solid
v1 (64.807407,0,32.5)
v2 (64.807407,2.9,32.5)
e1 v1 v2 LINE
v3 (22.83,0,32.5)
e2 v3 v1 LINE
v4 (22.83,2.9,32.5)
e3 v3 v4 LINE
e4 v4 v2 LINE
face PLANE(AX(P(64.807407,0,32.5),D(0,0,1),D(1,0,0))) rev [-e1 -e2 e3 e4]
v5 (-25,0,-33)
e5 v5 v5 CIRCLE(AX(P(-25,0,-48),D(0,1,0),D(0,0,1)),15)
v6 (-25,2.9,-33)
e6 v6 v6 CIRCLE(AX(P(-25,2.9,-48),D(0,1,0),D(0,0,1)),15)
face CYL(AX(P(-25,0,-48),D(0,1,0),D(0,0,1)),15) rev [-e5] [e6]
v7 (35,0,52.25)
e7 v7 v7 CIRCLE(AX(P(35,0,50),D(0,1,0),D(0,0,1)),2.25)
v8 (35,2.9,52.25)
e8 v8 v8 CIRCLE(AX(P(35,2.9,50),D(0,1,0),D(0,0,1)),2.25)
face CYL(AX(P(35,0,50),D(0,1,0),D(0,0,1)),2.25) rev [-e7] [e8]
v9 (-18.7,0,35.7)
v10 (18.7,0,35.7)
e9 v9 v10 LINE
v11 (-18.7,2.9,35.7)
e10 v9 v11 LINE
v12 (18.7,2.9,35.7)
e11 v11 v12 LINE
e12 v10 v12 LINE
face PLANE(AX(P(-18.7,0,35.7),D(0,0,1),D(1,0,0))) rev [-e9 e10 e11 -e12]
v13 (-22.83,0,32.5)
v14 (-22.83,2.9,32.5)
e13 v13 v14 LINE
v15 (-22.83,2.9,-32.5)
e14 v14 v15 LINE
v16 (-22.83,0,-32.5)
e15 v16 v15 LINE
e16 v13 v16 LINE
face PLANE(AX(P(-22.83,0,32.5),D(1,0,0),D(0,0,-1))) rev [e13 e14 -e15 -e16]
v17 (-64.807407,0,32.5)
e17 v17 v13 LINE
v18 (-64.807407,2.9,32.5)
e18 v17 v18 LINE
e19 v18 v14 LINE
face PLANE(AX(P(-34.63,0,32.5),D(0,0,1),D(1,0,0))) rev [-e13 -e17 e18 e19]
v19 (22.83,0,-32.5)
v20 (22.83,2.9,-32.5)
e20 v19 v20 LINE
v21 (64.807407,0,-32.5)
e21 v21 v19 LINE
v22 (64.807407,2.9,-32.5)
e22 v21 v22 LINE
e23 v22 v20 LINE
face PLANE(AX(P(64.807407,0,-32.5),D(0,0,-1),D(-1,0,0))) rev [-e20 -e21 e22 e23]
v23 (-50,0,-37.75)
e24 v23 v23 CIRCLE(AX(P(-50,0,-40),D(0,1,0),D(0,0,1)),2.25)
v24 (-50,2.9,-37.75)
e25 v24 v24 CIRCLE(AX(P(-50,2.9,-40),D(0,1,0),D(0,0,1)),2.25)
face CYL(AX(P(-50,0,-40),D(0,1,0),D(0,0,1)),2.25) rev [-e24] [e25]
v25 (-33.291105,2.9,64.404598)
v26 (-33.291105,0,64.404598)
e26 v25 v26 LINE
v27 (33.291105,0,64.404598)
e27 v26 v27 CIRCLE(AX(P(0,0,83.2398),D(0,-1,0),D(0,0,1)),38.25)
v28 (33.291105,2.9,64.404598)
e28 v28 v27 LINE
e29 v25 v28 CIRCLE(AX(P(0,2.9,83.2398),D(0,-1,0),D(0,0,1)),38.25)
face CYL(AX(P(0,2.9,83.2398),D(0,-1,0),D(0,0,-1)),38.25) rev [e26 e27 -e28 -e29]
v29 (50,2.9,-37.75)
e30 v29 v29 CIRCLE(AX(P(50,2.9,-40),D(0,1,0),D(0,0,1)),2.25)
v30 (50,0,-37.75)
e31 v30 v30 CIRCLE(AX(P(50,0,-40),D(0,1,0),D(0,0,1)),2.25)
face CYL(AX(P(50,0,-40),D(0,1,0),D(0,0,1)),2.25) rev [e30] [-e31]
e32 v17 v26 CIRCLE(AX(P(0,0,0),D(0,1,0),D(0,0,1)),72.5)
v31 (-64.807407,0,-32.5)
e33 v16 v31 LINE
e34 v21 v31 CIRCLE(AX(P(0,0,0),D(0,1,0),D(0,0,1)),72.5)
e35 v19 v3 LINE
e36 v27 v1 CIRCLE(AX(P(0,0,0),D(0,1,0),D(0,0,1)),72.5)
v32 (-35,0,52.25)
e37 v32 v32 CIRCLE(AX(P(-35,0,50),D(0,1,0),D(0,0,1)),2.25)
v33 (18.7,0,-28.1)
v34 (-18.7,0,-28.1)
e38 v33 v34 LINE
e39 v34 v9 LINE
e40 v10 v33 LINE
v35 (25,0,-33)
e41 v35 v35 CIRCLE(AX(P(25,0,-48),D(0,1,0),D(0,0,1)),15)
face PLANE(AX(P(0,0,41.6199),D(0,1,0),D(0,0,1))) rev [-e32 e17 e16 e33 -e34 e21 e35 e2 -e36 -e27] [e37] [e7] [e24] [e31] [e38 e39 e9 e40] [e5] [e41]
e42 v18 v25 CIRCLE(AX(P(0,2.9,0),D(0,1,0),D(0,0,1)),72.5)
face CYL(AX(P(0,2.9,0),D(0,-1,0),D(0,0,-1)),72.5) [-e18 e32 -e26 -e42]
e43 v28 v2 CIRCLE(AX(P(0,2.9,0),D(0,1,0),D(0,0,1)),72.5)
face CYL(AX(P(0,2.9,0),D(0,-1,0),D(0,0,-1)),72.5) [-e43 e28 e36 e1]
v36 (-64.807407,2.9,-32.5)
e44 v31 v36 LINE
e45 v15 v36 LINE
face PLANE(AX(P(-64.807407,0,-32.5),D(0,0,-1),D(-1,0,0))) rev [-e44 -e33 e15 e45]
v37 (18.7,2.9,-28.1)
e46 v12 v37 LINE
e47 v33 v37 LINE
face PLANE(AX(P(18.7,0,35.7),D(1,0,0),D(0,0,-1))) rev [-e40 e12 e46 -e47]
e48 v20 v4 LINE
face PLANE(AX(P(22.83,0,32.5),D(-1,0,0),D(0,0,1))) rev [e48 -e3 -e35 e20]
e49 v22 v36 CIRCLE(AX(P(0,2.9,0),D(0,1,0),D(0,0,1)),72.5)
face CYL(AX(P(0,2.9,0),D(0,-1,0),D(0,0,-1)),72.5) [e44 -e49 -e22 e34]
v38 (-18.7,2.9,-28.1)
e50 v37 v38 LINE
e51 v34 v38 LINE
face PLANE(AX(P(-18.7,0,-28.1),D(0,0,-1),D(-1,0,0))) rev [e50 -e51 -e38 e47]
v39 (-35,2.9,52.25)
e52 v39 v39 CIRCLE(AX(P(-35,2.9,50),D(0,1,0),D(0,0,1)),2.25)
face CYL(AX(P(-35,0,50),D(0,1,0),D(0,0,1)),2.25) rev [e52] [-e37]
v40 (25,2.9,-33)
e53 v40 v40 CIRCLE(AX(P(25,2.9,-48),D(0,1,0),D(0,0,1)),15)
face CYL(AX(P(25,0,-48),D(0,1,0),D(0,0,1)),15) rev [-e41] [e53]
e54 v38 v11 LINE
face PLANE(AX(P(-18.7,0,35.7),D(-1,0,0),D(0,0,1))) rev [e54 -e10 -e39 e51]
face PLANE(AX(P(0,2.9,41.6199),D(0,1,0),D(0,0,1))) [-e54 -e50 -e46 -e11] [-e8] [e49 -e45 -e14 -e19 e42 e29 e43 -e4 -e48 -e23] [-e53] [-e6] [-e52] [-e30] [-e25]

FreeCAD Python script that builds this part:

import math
import FreeCAD as App
import Part
import Sketcher
from FreeCAD import Vector


def add_polygon(sketch, points):
    """Adds a closed chain of lines whose ends are joined by coincident constraints."""
    first, n = sketch.GeometryCount, len(points)
    for a, b in zip(points, points[1:] + points[:1]):
        sketch.addGeometry(Part.LineSegment(App.Vector(*a, 0), App.Vector(*b, 0)), False)
    for i in range(n):
        sketch.addConstraint(Sketcher.Constraint("Coincident", first + i, 2, first + (i + 1) % n, 1))

doc = App.newDocument("Part")
body = doc.addObject("PartDesign::Body", "Body")

# Sketch on XZ plane
sketch1 = body.newObject("Sketcher::SketchObject", "Sketch")
sketch1.AttachmentSupport = (doc.getObject("XZ_Plane"), [""])
sketch1.MapMode = "FlatFace"
sketch1.addGeometry([
    Part.ArcOfCircle(Part.Circle(Vector(0, 0, 0), Vector(0, 0, 1), 72), math.radians(117), math.radians(423)),
    Part.ArcOfCircle(Part.Circle(Vector(0, 83, 0), Vector(0, 0, 1), 38), math.radians(-150), math.radians(-30)),
], False)
sketch1.addConstraint([
    Sketcher.Constraint("Coincident", 0, 1, 1, 1),
    Sketcher.Constraint("Coincident", 1, 2, 0, 2),
    Sketcher.Constraint("Coincident", 0, 3, -1, 1),
    Sketcher.Constraint("PointOnObject", 1, 3, -2),
    Sketcher.Constraint("Radius", 0, 72.5),
    Sketcher.Constraint("Radius", 1, 38.25),
    Sketcher.Constraint("DistanceY", -1, 1, 1, 3, 83.2398),
])
pad1 = body.newObject("PartDesign::Pad", "Pad")
pad1.Profile = sketch1
pad1.Length = 2.9
pad1.Reversed = True

# Sketch on XZ plane
sketch2 = body.newObject("Sketcher::SketchObject", "Sketch001")
sketch2.AttachmentSupport = (doc.getObject("XZ_Plane"), [""])
sketch2.MapMode = "FlatFace"
sketch2.AttachmentOffset = App.Placement(Vector(0, 0, -2.9), App.Rotation())
add_polygon(sketch2, [(-19, -28), (-19, 36), (19, 36), (19, -28)])  # lines 0-3
sketch2.addConstraint([
    Sketcher.Constraint("Vertical", 0),
    Sketcher.Constraint("Horizontal", 1),
    Sketcher.Constraint("Vertical", 2),
    Sketcher.Constraint("Horizontal", 3),
    Sketcher.Constraint("DistanceX", 1, 1, 1, 2, 37.4),
    Sketcher.Constraint("DistanceY", 0, 1, 0, 2, 63.8),
    Sketcher.Constraint("DistanceX", 0, 2, -1, 1, 18.7),
    Sketcher.Constraint("DistanceY", -1, 1, 0, 2, 35.7),
])
pocket1 = body.newObject("PartDesign::Pocket", "Pocket")
pocket1.Profile = sketch2
pocket1.Type = "ThroughAll"
pocket1.Reversed = True

# Sketch on XZ plane
sketch3 = body.newObject("Sketcher::SketchObject", "Sketch002")
sketch3.AttachmentSupport = (doc.getObject("XZ_Plane"), [""])
sketch3.MapMode = "FlatFace"
sketch3.AttachmentOffset = App.Placement(Vector(0, 0, -2.9), App.Rotation())
sketch3.addGeometry([
    Part.LineSegment(Vector(-23, 32, 0), Vector(-23, -32, 0)),  # 0
    Part.LineSegment(Vector(-23, -32, 0), Vector(-65, -32, 0)),  # 1
    Part.ArcOfCircle(Part.Circle(Vector(0, 0, 0), Vector(0, 0, 1), 72), math.radians(153), math.radians(207)),  # 2
    Part.LineSegment(Vector(-65, 32, 0), Vector(-23, 32, 0)),  # 3
    Part.LineSegment(Vector(23, -32, 0), Vector(23, 32, 0)),  # 4
    Part.LineSegment(Vector(23, 32, 0), Vector(65, 32, 0)),  # 5
    Part.ArcOfCircle(Part.Circle(Vector(0, 0, 0), Vector(0, 0, 1), 72), math.radians(-27), math.radians(27)),  # 6
    Part.LineSegment(Vector(65, -32, 0), Vector(23, -32, 0)),  # 7
], False)
sketch3.addConstraint([
    Sketcher.Constraint("Coincident", 0, 2, 1, 1),
    Sketcher.Constraint("Coincident", 1, 2, 2, 2),
    Sketcher.Constraint("Coincident", 2, 1, 3, 1),
    Sketcher.Constraint("Coincident", 3, 2, 0, 1),
    Sketcher.Constraint("Coincident", 4, 2, 5, 1),
    Sketcher.Constraint("Coincident", 5, 2, 6, 2),
    Sketcher.Constraint("Coincident", 6, 1, 7, 1),
    Sketcher.Constraint("Coincident", 7, 2, 4, 1),
    Sketcher.Constraint("Vertical", 0),
    Sketcher.Constraint("Horizontal", 1),
    Sketcher.Constraint("Horizontal", 3),
    Sketcher.Constraint("Vertical", 4),
    Sketcher.Constraint("Horizontal", 5),
    Sketcher.Constraint("Horizontal", 7),
    Sketcher.Constraint("Coincident", 2, 3, -1, 1),
    Sketcher.Constraint("Coincident", 6, 3, -1, 1),
    Sketcher.Constraint("Equal", 2, 6),
    Sketcher.Constraint("Symmetric", 0, 2, 4, 2, -1, 1),
    Sketcher.Constraint("Horizontal", 3, 2, 4, 2),
    Sketcher.Constraint("Horizontal", 1, 2, 6, 1),
    Sketcher.Constraint("Radius", 2, 72.5),
    Sketcher.Constraint("DistanceY", 0, 2, 0, 1, 65.0),
    Sketcher.Constraint("DistanceX", 0, 2, -1, 1, 22.83),
])
pocket2 = body.newObject("PartDesign::Pocket", "Pocket001")
pocket2.Profile = sketch3
pocket2.Type = "ThroughAll"
pocket2.Reversed = True

# Sketch on XZ plane
sketch4 = body.newObject("Sketcher::SketchObject", "Sketch003")
sketch4.AttachmentSupport = (doc.getObject("XZ_Plane"), [""])
sketch4.MapMode = "FlatFace"
sketch4.AttachmentOffset = App.Placement(Vector(0, 0, -2.9), App.Rotation())
sketch4.addGeometry([
    Part.Circle(Vector(25, -48, 0), Vector(0, 0, 1), 15),
    Part.Circle(Vector(-25, -48, 0), Vector(0, 0, 1), 15),
], False)
sketch4.addConstraint([
    Sketcher.Constraint("Equal", 0, 1),
    Sketcher.Constraint("Symmetric", 0, 3, 1, 3, -2),
    Sketcher.Constraint("Diameter", 0, 30.0),
    Sketcher.Constraint("DistanceX", -1, 1, 0, 3, 25.0),
    Sketcher.Constraint("DistanceY", 0, 3, -1, 1, 48.0),
])
pocket3 = body.newObject("PartDesign::Pocket", "Pocket002")
pocket3.Profile = sketch4
pocket3.Type = "ThroughAll"
pocket3.Reversed = True

# Sketch on XZ plane
sketch5 = body.newObject("Sketcher::SketchObject", "Sketch004")
sketch5.AttachmentSupport = (doc.getObject("XZ_Plane"), [""])
sketch5.MapMode = "FlatFace"
sketch5.AttachmentOffset = App.Placement(Vector(0, 0, -2.9), App.Rotation())
sketch5.addGeometry([
    Part.Circle(Vector(35, 50, 0), Vector(0, 0, 1), 2.2),
    Part.Circle(Vector(-35, 50, 0), Vector(0, 0, 1), 2.2),
    Part.Circle(Vector(-50, -40, 0), Vector(0, 0, 1), 2.2),
    Part.Circle(Vector(50, -40, 0), Vector(0, 0, 1), 2.2),
], False)
sketch5.addConstraint([
    Sketcher.Constraint("Equal", 0, 1),
    Sketcher.Constraint("Equal", 1, 2),
    Sketcher.Constraint("Equal", 2, 3),
    Sketcher.Constraint("Symmetric", 0, 3, 1, 3, -2),
    Sketcher.Constraint("Symmetric", 2, 3, 3, 3, -2),
    Sketcher.Constraint("Diameter", 0, 4.5),
    Sketcher.Constraint("DistanceX", -1, 1, 0, 3, 35.0),
    Sketcher.Constraint("DistanceY", -1, 1, 0, 3, 50.0),
    Sketcher.Constraint("DistanceX", 2, 3, -1, 1, 50.0),
    Sketcher.Constraint("DistanceY", 2, 3, -1, 1, 40.0),
])
pocket4 = body.newObject("PartDesign::Pocket", "Pocket003")
pocket4.Profile = sketch5
pocket4.Type = "ThroughAll"
pocket4.Reversed = True

doc.recompute()
